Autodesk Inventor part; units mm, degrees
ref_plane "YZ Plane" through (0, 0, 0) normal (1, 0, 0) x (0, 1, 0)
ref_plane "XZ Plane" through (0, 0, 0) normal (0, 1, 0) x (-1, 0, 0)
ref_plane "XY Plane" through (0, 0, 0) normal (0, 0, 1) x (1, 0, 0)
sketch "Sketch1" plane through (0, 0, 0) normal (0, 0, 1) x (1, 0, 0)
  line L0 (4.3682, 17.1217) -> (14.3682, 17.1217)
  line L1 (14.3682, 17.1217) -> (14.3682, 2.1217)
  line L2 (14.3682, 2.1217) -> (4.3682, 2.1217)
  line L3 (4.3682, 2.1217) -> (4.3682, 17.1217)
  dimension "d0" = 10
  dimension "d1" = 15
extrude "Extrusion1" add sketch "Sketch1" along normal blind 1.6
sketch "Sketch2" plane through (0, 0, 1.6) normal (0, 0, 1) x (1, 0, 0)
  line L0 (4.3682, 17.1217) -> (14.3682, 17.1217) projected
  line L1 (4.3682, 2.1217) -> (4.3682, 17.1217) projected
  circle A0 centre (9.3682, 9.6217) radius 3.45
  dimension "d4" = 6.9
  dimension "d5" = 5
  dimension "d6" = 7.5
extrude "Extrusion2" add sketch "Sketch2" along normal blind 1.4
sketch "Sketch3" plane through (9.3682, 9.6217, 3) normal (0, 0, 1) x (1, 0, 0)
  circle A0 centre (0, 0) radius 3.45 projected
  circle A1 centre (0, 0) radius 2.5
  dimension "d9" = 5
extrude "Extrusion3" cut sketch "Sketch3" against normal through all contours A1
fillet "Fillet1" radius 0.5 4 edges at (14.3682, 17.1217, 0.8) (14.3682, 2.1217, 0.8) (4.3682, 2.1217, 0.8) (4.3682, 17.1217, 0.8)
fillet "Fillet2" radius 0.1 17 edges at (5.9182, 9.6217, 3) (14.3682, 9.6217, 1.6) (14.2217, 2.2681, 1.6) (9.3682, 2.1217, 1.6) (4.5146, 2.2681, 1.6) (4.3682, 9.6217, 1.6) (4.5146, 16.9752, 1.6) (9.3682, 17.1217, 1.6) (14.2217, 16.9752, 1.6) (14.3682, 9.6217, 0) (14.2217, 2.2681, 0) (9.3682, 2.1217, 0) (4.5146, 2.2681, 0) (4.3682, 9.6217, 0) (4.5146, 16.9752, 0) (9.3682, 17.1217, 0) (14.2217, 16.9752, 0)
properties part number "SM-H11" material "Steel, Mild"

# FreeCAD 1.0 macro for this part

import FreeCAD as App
import Part
import Sketcher

V = App.Vector


def edges_at(feature, points):
    """Names of the edges that pass closest to the given points."""
    edges = feature.Shape.Edges
    near = lambda p: min(range(len(edges)), key=lambda i: edges[i].distToShape(Part.Vertex(*p))[0])
    return sorted({f"Edge{near(p) + 1}" for p in points})


def add_polygon(sketch, points):
    """Adds a closed chain of lines whose ends are joined by coincident constraints."""
    first, n = sketch.GeometryCount, len(points)
    for a, b in zip(points, points[1:] + points[:1]):
        sketch.addGeometry(Part.LineSegment(App.Vector(*a, 0), App.Vector(*b, 0)), False)
    for i in range(n):
        sketch.addConstraint(Sketcher.Constraint("Coincident", first + i, 2, first + (i + 1) % n, 1))

doc = App.newDocument("Part")
body = doc.addObject("PartDesign::Body", "Body")

sketch1 = body.newObject("Sketcher::SketchObject", "Sketch")
sketch1.AttachmentSupport = (doc.getObject("XY_Plane"), [""])
sketch1.MapMode = "FlatFace"
add_polygon(sketch1, [(14, 17), (4, 17), (4, 2), (14, 2)])
sketch1.addConstraint([
    Sketcher.Constraint("Horizontal", 0),
    Sketcher.Constraint("Vertical", 1),
    Sketcher.Constraint("Horizontal", 2),
    Sketcher.Constraint("Vertical", 3),
    Sketcher.Constraint("DistanceX", 0, 2, 0, 1, 10.0),
    Sketcher.Constraint("DistanceY", 1, 2, 1, 1, 15.0),
    Sketcher.Constraint("DistanceX", -1, 1, 0, 2, 4.3682),
    Sketcher.Constraint("DistanceY", -1, 1, 0, 2, 17.1217),
])
pad1 = body.newObject("PartDesign::Pad", "Pad")
pad1.Profile = sketch1
pad1.Length = 1.6

sketch2 = body.newObject("Sketcher::SketchObject", "Sketch001")
sketch2.AttachmentSupport = (doc.getObject("XY_Plane"), [""])
sketch2.MapMode = "FlatFace"
sketch2.AttachmentOffset = App.Placement(V(0, 0, 1.6), App.Rotation())
sketch2.addGeometry(Part.Circle(V(9.4, 9.6, 0), V(0, 0, 1), 3.5), False)
sketch2.addConstraint([
    Sketcher.Constraint("Diameter", 0, 6.9),
    Sketcher.Constraint("DistanceX", -1, 1, 0, 3, 9.3682),
    Sketcher.Constraint("DistanceY", -1, 1, 0, 3, 9.6217),
])
pad2 = body.newObject("PartDesign::Pad", "Pad001")
pad2.Profile = sketch2
pad2.Length = 1.4

sketch3 = body.newObject("Sketcher::SketchObject", "Sketch002")
sketch3.AttachmentSupport = (doc.getObject("XY_Plane"), [""])
sketch3.MapMode = "FlatFace"
sketch3.AttachmentOffset = App.Placement(V(0, 0, 3), App.Rotation())
sketch3.addGeometry(Part.Circle(V(9.4, 9.6, 0), V(0, 0, 1), 2.5), False)
sketch3.addConstraint([
    Sketcher.Constraint("Diameter", 0, 5.0),
    Sketcher.Constraint("DistanceX", -1, 1, 0, 3, 9.3682),
    Sketcher.Constraint("DistanceY", -1, 1, 0, 3, 9.6217),
])
pocket1 = body.newObject("PartDesign::Pocket", "Pocket")
pocket1.Profile = sketch3
pocket1.Type = "ThroughAll"
doc.recompute()

fillet = body.newObject("PartDesign::Fillet", "Fillet")
fillet.Base = (pocket1, edges_at(pocket1, [
    (14.368, 17.122, 0.8),
    (14.368, 2.122, 0.8),
    (4.368, 2.122, 0.8),
    (4.368, 17.122, 0.8),
]))
fillet.Radius = 0.5
doc.recompute()

fillet2 = body.newObject("PartDesign::Fillet", "Fillet001")
fillet2.Base = (fillet, edges_at(fillet, [
    (5.918, 9.622, 3),
    (14.368, 9.622, 1.6),
    (14.222, 2.268, 1.6),
    (9.368, 2.122, 1.6),
    (4.515, 2.268, 1.6),
    (4.368, 9.622, 1.6),
    (4.515, 16.975, 1.6),
    (9.368, 17.122, 1.6),
    (14.222, 16.975, 1.6),
    (14.368, 9.622, 0),
    (14.222, 2.268, 0),
    (9.368, 2.122, 0),
    (4.515, 2.268, 0),
    (4.368, 9.622, 0),
    (4.515, 16.975, 0),
    (9.368, 17.122, 0),
    (14.222, 16.975, 0),
]))
fillet2.Radius = 0.1

doc.recompute()
